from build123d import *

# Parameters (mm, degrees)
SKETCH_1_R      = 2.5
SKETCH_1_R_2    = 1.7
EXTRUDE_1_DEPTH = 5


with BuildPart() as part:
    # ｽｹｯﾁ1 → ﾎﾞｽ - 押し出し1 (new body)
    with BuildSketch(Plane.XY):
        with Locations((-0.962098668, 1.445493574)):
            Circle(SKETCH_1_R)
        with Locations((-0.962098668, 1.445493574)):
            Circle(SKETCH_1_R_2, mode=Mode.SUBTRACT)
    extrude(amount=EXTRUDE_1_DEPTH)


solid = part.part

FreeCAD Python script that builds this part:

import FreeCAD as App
import Part
import Sketcher
Q = App.Units.Quantity

doc = App.newDocument("Part")
body = doc.addObject("PartDesign::Body", "Body")

# Sketch on XY plane
sketch1 = doc.addObject("Sketcher::SketchObject", "Sketch")
body.addObject(sketch1)
sketch1.AttachmentSupport = (doc.XY_Plane, [""])
sketch1.MapMode = "FlatFace"
sketch1.addGeometry(Part.Circle(App.Vector(-1, 1.4, 0), App.Vector(0, 0, 1), 2.5), False)
sketch1.addGeometry(Part.Circle(App.Vector(-1, 1.4, 0), App.Vector(0, 0, 1), 1.7), False)
sketch1.addConstraint(Sketcher.Constraint("Coincident", 1, 3, 0, 3))
sketch1.addConstraint(Sketcher.Constraint("Diameter", 0, Q("5 mm")))
sketch1.addConstraint(Sketcher.Constraint("Diameter", 1, Q("3.4 mm")))
sketch1.addConstraint(Sketcher.Constraint("DistanceX", 0, 3, -1, 1, Q("0.962099 mm")))
sketch1.addConstraint(Sketcher.Constraint("DistanceY", -1, 1, 0, 3, Q("1.445494 mm")))
pad1 = doc.addObject("PartDesign::Pad", "Pad")
body.addObject(pad1)
pad1.Profile = sketch1
pad1.Length = 5

doc.recompute()
